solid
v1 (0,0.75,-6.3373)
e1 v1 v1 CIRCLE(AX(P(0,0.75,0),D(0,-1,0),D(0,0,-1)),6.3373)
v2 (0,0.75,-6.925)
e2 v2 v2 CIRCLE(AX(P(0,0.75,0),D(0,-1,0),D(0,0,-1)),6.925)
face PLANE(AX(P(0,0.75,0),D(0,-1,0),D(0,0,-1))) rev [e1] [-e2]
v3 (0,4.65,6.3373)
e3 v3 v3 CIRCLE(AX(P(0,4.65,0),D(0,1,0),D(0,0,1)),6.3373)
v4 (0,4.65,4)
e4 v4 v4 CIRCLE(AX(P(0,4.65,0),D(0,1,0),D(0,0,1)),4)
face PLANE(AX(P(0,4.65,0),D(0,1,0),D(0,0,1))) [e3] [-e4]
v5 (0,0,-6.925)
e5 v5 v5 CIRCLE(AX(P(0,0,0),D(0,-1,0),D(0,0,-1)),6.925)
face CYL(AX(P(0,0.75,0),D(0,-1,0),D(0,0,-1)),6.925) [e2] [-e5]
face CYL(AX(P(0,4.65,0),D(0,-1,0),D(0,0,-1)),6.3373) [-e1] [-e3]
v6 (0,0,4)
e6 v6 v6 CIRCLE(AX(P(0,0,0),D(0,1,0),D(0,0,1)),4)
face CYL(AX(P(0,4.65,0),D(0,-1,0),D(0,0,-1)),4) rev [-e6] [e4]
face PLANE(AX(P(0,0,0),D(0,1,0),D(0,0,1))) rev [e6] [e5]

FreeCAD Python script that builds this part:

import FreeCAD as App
import Part
import Sketcher

V = App.Vector

doc = App.newDocument("Part")
body = doc.addObject("PartDesign::Body", "Body")

# Sketch on XZ plane
sketch1 = body.newObject("Sketcher::SketchObject", "Sketch")
sketch1.AttachmentSupport = (doc.getObject("XZ_Plane"), [""])
sketch1.MapMode = "FlatFace"
sketch1.addGeometry([
    Part.Circle(V(0, 0, 0), V(0, 0, 1), 6.3373),
    Part.Circle(V(0, 0, 0), V(0, 0, 1), 4),
], False)
sketch1.addConstraint([
    Sketcher.Constraint("Coincident", 0, 3, -1, 1),
    Sketcher.Constraint("Coincident", 1, 3, -1, 1),
    Sketcher.Constraint("Diameter", 1, 8.0),
    Sketcher.Constraint("Diameter", 0, 12.6746),
])
pad1 = body.newObject("PartDesign::Pad", "Pad")
pad1.Profile = sketch1
pad1.Length = 4.65
pad1.Reversed = True

# Sketch on XZ plane
sketch2 = body.newObject("Sketcher::SketchObject", "Sketch001")
sketch2.AttachmentSupport = (doc.getObject("XZ_Plane"), [""])
sketch2.MapMode = "FlatFace"
sketch2.addGeometry([
    Part.Circle(V(0, 0, 0), V(0, 0, 1), 6.925),
    Part.Circle(V(0, 0, 0), V(0, 0, 1), 4),
], False)
sketch2.addConstraint([
    Sketcher.Constraint("Coincident", 0, 3, -1, 1),
    Sketcher.Constraint("Coincident", 1, 3, -1, 1),
    Sketcher.Constraint("Diameter", 1, 8.0),
    Sketcher.Constraint("Diameter", 0, 13.85),
])
pad2 = body.newObject("PartDesign::Pad", "Pad001")
pad2.Profile = sketch2
pad2.Length = 0.75
pad2.Reversed = True

doc.recompute()
